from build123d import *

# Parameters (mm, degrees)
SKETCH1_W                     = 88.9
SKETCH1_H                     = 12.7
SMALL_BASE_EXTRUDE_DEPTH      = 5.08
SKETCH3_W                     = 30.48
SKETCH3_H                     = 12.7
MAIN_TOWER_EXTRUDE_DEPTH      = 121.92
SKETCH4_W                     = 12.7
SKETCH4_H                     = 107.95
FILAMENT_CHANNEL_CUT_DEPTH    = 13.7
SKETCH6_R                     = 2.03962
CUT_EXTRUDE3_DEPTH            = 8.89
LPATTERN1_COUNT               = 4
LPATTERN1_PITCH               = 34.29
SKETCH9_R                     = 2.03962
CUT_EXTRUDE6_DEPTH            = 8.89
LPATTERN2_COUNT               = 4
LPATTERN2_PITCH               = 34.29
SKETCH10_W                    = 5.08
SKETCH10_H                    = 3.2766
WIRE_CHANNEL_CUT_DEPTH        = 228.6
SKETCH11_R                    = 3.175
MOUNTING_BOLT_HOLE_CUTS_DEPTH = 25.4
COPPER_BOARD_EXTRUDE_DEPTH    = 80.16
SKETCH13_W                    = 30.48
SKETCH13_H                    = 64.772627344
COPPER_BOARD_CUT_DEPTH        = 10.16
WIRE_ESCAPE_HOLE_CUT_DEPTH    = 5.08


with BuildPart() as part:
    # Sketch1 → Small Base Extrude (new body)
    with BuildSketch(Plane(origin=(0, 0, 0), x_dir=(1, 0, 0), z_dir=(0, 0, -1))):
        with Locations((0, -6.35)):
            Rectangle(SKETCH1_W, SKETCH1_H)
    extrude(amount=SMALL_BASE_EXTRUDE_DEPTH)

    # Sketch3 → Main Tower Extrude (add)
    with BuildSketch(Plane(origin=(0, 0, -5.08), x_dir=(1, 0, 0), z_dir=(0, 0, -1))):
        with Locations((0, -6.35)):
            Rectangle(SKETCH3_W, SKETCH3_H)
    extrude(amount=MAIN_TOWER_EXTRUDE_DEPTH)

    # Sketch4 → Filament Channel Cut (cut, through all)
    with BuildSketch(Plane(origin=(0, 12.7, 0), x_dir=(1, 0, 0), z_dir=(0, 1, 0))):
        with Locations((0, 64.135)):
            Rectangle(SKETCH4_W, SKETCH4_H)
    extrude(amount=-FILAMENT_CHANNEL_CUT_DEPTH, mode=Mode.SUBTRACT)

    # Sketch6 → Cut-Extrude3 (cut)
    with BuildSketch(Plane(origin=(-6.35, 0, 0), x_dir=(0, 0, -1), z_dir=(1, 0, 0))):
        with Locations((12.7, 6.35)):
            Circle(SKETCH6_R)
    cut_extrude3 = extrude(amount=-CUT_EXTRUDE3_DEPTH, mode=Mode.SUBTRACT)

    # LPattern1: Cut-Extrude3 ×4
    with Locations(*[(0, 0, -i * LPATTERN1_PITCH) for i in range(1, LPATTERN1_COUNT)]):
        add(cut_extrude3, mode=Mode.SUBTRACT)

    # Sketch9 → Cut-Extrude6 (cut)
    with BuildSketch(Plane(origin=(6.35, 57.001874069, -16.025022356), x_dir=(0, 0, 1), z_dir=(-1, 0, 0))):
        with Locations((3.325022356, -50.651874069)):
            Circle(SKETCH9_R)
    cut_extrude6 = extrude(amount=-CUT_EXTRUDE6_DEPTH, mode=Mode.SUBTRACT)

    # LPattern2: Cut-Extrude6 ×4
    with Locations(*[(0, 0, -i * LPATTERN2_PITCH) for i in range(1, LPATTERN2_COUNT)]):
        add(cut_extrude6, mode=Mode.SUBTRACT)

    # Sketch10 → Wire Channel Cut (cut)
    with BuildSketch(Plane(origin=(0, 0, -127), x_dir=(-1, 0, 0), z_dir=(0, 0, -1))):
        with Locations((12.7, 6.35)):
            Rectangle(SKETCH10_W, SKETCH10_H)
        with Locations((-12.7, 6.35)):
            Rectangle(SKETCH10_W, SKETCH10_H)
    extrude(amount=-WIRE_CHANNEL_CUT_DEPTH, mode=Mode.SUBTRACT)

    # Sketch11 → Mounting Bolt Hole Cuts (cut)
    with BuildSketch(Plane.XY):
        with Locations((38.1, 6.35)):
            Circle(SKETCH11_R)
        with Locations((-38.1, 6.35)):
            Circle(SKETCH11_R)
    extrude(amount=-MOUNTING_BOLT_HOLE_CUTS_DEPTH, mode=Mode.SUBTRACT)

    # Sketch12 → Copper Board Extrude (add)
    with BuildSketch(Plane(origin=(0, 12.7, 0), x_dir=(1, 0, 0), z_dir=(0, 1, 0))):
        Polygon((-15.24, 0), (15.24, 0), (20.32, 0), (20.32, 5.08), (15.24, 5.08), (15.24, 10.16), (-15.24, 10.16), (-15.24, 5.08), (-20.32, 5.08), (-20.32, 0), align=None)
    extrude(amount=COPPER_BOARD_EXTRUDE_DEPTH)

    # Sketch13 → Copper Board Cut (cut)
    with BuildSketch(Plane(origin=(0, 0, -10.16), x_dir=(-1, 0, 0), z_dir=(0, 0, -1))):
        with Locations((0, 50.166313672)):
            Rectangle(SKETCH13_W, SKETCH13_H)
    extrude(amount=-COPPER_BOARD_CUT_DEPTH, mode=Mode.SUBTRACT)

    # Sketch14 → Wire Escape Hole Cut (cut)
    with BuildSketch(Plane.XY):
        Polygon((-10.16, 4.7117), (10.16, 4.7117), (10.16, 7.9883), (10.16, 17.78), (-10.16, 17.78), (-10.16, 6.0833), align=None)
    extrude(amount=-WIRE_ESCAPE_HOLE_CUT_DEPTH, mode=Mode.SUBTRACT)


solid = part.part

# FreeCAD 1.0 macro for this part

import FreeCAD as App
import Part
import Sketcher
Q = App.Units.Quantity


def add_polygon(sketch, points):
    """Adds a closed chain of lines whose ends are joined by coincident constraints."""
    first, n = sketch.GeometryCount, len(points)
    for a, b in zip(points, points[1:] + points[:1]):
        sketch.addGeometry(Part.LineSegment(App.Vector(*a, 0), App.Vector(*b, 0)), False)
    for i in range(n):
        sketch.addConstraint(Sketcher.Constraint("Coincident", first + i, 2, first + (i + 1) % n, 1))

doc = App.newDocument("Part")
body = doc.addObject("PartDesign::Body", "Body")

# Sketch on XY plane
sketch1 = body.newObject("Sketcher::SketchObject", "Sketch")
sketch1.AttachmentSupport = (doc.getObject("XY_Plane"), [""])
sketch1.MapMode = "FlatFace"
add_polygon(sketch1, [(-44, 0), (-44, 13), (44, 13), (44, 0)])  # lines 0-3
sketch1.addConstraint(Sketcher.Constraint("Vertical", 0))
sketch1.addConstraint(Sketcher.Constraint("Horizontal", 1))
sketch1.addConstraint(Sketcher.Constraint("Vertical", 2))
sketch1.addConstraint(Sketcher.Constraint("Horizontal", 3))
sketch1.addConstraint(Sketcher.Constraint("Symmetric", 2, 2, 3, 2, -1, 1))
sketch1.addConstraint(Sketcher.Constraint("DistanceX", 1, 1, 1, 2, Q("3.5 in")))
sketch1.addConstraint(Sketcher.Constraint("DistanceY", 0, 1, 0, 2, Q("0.5 in")))
pad1 = body.newObject("PartDesign::Pad", "Pad")
pad1.Profile = sketch1
pad1.Length = Q("0.2 in")
pad1.Reversed = True

# Sketch on XY plane
sketch2 = body.newObject("Sketcher::SketchObject", "Sketch001")
sketch2.AttachmentSupport = (doc.getObject("XY_Plane"), [""])
sketch2.MapMode = "FlatFace"
sketch2.AttachmentOffset = App.Placement(App.Vector(0, 0, -0.2 * 25.4), App.Rotation())
add_polygon(sketch2, [(-15, 0), (-15, 13), (15, 13), (15, 0)])  # lines 0-3
sketch2.addConstraint(Sketcher.Constraint("Vertical", 0))
sketch2.addConstraint(Sketcher.Constraint("Horizontal", 1))
sketch2.addConstraint(Sketcher.Constraint("Vertical", 2))
sketch2.addConstraint(Sketcher.Constraint("Horizontal", 3))
sketch2.addConstraint(Sketcher.Constraint("Symmetric", 2, 2, 3, 2, -1, 1))
sketch2.addConstraint(Sketcher.Constraint("DistanceX", 1, 1, 1, 2, Q("1.2 in")))
sketch2.addConstraint(Sketcher.Constraint("DistanceY", 0, 1, 0, 2, Q("0.5 in")))
pad2 = body.newObject("PartDesign::Pad", "Pad001")
pad2.Profile = sketch2
pad2.Length = Q("4.8 in")
pad2.Reversed = True

# Sketch on XZ plane
sketch3 = body.newObject("Sketcher::SketchObject", "Sketch002")
sketch3.AttachmentSupport = (doc.getObject("XZ_Plane"), [""])
sketch3.MapMode = "FlatFace"
sketch3.AttachmentOffset = App.Placement(App.Vector(0, 0, -0.5 * 25.4), App.Rotation())
add_polygon(sketch3, [(-6, -118), (-6, -10), (6, -10), (6, -118)])  # lines 0-3
sketch3.addConstraint(Sketcher.Constraint("Vertical", 0))
sketch3.addConstraint(Sketcher.Constraint("Horizontal", 1))
sketch3.addConstraint(Sketcher.Constraint("Vertical", 2))
sketch3.addConstraint(Sketcher.Constraint("Horizontal", 3))
sketch3.addConstraint(Sketcher.Constraint("DistanceX", 1, 1, 1, 2, Q("0.5 in")))
sketch3.addConstraint(Sketcher.Constraint("DistanceY", 0, 1, 0, 2, Q("4.25 in")))
sketch3.addConstraint(Sketcher.Constraint("DistanceY", 0, 2, -1, 1, Q("0.4 in")))
sketch3.addConstraint(Sketcher.Constraint("DistanceX", 0, 2, -1, 1, Q("0.25 in")))
pocket1 = body.newObject("PartDesign::Pocket", "Pocket")
pocket1.Profile = sketch3
pocket1.Type = "ThroughAll"
pocket1.Reversed = True

# Sketch on YZ plane
sketch4 = body.newObject("Sketcher::SketchObject", "Sketch003")
sketch4.AttachmentSupport = (doc.getObject("YZ_Plane"), [""])
sketch4.MapMode = "FlatFace"
sketch4.AttachmentOffset = App.Placement(App.Vector(0, 0, -0.25 * 25.4), App.Rotation())
sketch4.addGeometry(Part.Circle(App.Vector(6.3, -12.7, 0), App.Vector(0, 0, 1), 2), False)
sketch4.addConstraint(Sketcher.Constraint("Diameter", 0, Q("0.1606 in")))
sketch4.addConstraint(Sketcher.Constraint("DistanceY", 0, 3, -1, 1, Q("0.5 in")))
sketch4.addConstraint(Sketcher.Constraint("DistanceX", -1, 1, 0, 3, Q("0.25 in")))
pocket2 = body.newObject("PartDesign::Pocket", "Pocket001")
pocket2.Profile = sketch4
pocket2.Length = Q("0.35 in")
doc.recompute()

linearpattern = body.newObject("PartDesign::LinearPattern", "LinearPattern")
linearpattern.Originals = [pocket2]
linearpattern.Direction = (doc.getObject("Z_Axis"), [""])
linearpattern.Mode = "offset"
linearpattern.Offset = Q("1.35 in")
linearpattern.Occurrences = 4
linearpattern.Reversed = True
body.Tip = linearpattern

# Sketch on YZ plane
sketch5 = body.newObject("Sketcher::SketchObject", "Sketch004")
sketch5.AttachmentSupport = (doc.getObject("YZ_Plane"), [""])
sketch5.MapMode = "FlatFace"
sketch5.AttachmentOffset = App.Placement(App.Vector(0, 0, 0.25 * 25.4), App.Rotation())
sketch5.addGeometry(Part.Circle(App.Vector(6.3, -12.7, 0), App.Vector(0, 0, 1), 2), False)
sketch5.addConstraint(Sketcher.Constraint("Diameter", 0, Q("0.1606 in")))
sketch5.addConstraint(Sketcher.Constraint("DistanceY", 0, 3, -1, 1, Q("0.5 in")))
sketch5.addConstraint(Sketcher.Constraint("DistanceX", -1, 1, 0, 3, Q("0.25 in")))
pocket3 = body.newObject("PartDesign::Pocket", "Pocket002")
pocket3.Profile = sketch5
pocket3.Length = Q("0.35 in")
pocket3.Reversed = True
doc.recompute()

linearpattern2 = body.newObject("PartDesign::LinearPattern", "LinearPattern001")
linearpattern2.Originals = [pocket3]
linearpattern2.Direction = (doc.getObject("Z_Axis"), [""])
linearpattern2.Mode = "offset"
linearpattern2.Offset = Q("1.35 in")
linearpattern2.Occurrences = 4
linearpattern2.Reversed = True
body.Tip = linearpattern2

# Sketch on XY plane
sketch6 = body.newObject("Sketcher::SketchObject", "Sketch005")
sketch6.AttachmentSupport = (doc.getObject("XY_Plane"), [""])
sketch6.MapMode = "FlatFace"
sketch6.AttachmentOffset = App.Placement(App.Vector(0, 0, -5 * 25.4), App.Rotation())
add_polygon(sketch6, [(-10.2, 8), (-10.2, 4.7), (-15.2, 4.7), (-15.2, 8)])  # lines 0-3
add_polygon(sketch6, [(15.2, 8), (15.2, 4.7), (10.2, 4.7), (10.2, 8)])  # lines 4-7
sketch6.addConstraint(Sketcher.Constraint("Vertical", 0))
sketch6.addConstraint(Sketcher.Constraint("Horizontal", 1))
sketch6.addConstraint(Sketcher.Constraint("Vertical", 2))
sketch6.addConstraint(Sketcher.Constraint("Horizontal", 3))
sketch6.addConstraint(Sketcher.Constraint("Vertical", 4))
sketch6.addConstraint(Sketcher.Constraint("Horizontal", 5))
sketch6.addConstraint(Sketcher.Constraint("Vertical", 6))
sketch6.addConstraint(Sketcher.Constraint("Horizontal", 7))
sketch6.addConstraint(Sketcher.Constraint("Symmetric", 1, 2, 4, 2, -2))
sketch6.addConstraint(Sketcher.Constraint("Symmetric", 3, 2, 6, 2, -2))
sketch6.addConstraint(Sketcher.Constraint("DistanceX", 1, 2, 1, 1, Q("0.2 in")))
sketch6.addConstraint(Sketcher.Constraint("DistanceX", 0, 2, 4, 2, Q("1 in")))
sketch6.addConstraint(Sketcher.Constraint("DistanceY", 0, 2, 0, 1, Q("0.129 in")))
sketch6.addConstraint(Sketcher.Constraint("DistanceY", -1, 1, 0, 2, Q("0.1855 in")))
pocket4 = body.newObject("PartDesign::Pocket", "Pocket003")
pocket4.Profile = sketch6
pocket4.Length = Q("9 in")
pocket4.Reversed = True

# Sketch on XY plane
sketch7 = body.newObject("Sketcher::SketchObject", "Sketch006")
sketch7.AttachmentSupport = (doc.getObject("XY_Plane"), [""])
sketch7.MapMode = "FlatFace"
sketch7.addGeometry(Part.Circle(App.Vector(38.1, 6.3, 0), App.Vector(0, 0, 1), 3.2), False)
sketch7.addGeometry(Part.Circle(App.Vector(-38.1, 6.3, 0), App.Vector(0, 0, 1), 3.2), False)
sketch7.addConstraint(Sketcher.Constraint("Equal", 0, 1))
sketch7.addConstraint(Sketcher.Constraint("Symmetric", 0, 3, 1, 3, -2))
sketch7.addConstraint(Sketcher.Constraint("Diameter", 0, Q("0.25 in")))
sketch7.addConstraint(Sketcher.Constraint("DistanceX", 1, 3, 0, 3, Q("3 in")))
sketch7.addConstraint(Sketcher.Constraint("DistanceY", -1, 1, 0, 3, Q("0.25 in")))
pocket5 = body.newObject("PartDesign::Pocket", "Pocket004")
pocket5.Profile = sketch7
pocket5.Length = Q("1 in")

# Sketch on XZ plane
sketch8 = body.newObject("Sketcher::SketchObject", "Sketch007")
sketch8.AttachmentSupport = (doc.getObject("XZ_Plane"), [""])
sketch8.MapMode = "FlatFace"
sketch8.AttachmentOffset = App.Placement(App.Vector(0, 0, -0.5 * 25.4), App.Rotation())
add_polygon(sketch8, [(20, 0), (20, -5), (15, -5), (15, -10), (-15, -10), (-15, -5), (-20, -5), (-20, 0)])  # lines 0-7
sketch8.addConstraint(Sketcher.Constraint("Vertical", 0))
sketch8.addConstraint(Sketcher.Constraint("Horizontal", 1))
sketch8.addConstraint(Sketcher.Constraint("Vertical", 2))
sketch8.addConstraint(Sketcher.Constraint("Horizontal", 3))
sketch8.addConstraint(Sketcher.Constraint("Vertical", 4))
sketch8.addConstraint(Sketcher.Constraint("Horizontal", 5))
sketch8.addConstraint(Sketcher.Constraint("Vertical", 6))
sketch8.addConstraint(Sketcher.Constraint("Horizontal", 7))
sketch8.addConstraint(Sketcher.Constraint("Symmetric", 6, 2, 7, 2, -1, 1))
sketch8.addConstraint(Sketcher.Constraint("Symmetric", 1, 2, 4, 2, -2))
sketch8.addConstraint(Sketcher.Constraint("Equal", 5, 0))
sketch8.addConstraint(Sketcher.Constraint("Equal", 0, 2))
sketch8.addConstraint(Sketcher.Constraint("DistanceX", 1, 2, 1, 1, Q("0.2 in")))
sketch8.addConstraint(Sketcher.Constraint("DistanceX", 3, 2, 3, 1, Q("1.2 in")))
pad3 = body.newObject("PartDesign::Pad", "Pad002")
pad3.Profile = sketch8
pad3.Length = 80.16
pad3.Reversed = True

# Sketch on XY plane
sketch9 = body.newObject("Sketcher::SketchObject", "Sketch008")
sketch9.AttachmentSupport = (doc.getObject("XY_Plane"), [""])
sketch9.MapMode = "FlatFace"
sketch9.AttachmentOffset = App.Placement(App.Vector(0, 0, -0.4 * 25.4), App.Rotation())
add_polygon(sketch9, [(15, 83), (15, 18), (-15, 18), (-15, 83)])  # lines 0-3
sketch9.addConstraint(Sketcher.Constraint("Vertical", 0))
sketch9.addConstraint(Sketcher.Constraint("Horizontal", 1))
sketch9.addConstraint(Sketcher.Constraint("Vertical", 2))
sketch9.addConstraint(Sketcher.Constraint("Horizontal", 3))
sketch9.addConstraint(Sketcher.Constraint("DistanceX", 1, 2, 1, 1, Q("1.2 in")))
sketch9.addConstraint(Sketcher.Constraint("DistanceX", -1, 1, 0, 2, Q("0.6 in")))
sketch9.addConstraint(Sketcher.Constraint("DistanceY", -1, 1, 0, 2, Q("0.7 in")))
sketch9.addConstraint(Sketcher.Constraint("DistanceY", 0, 2, 0, 1, 64.772627))
pocket6 = body.newObject("PartDesign::Pocket", "Pocket005")
pocket6.Profile = sketch9
pocket6.Length = Q("0.4 in")
pocket6.Reversed = True

# Sketch on XY plane
sketch10 = body.newObject("Sketcher::SketchObject", "Sketch009")
sketch10.AttachmentSupport = (doc.getObject("XY_Plane"), [""])
sketch10.MapMode = "FlatFace"
add_polygon(sketch10, [(-10, 5), (10, 5), (10, 18), (-10, 18)])  # lines 0-3
sketch10.addConstraint(Sketcher.Constraint("Horizontal", 0))
sketch10.addConstraint(Sketcher.Constraint("Vertical", 1))
sketch10.addConstraint(Sketcher.Constraint("Horizontal", 2))
sketch10.addConstraint(Sketcher.Constraint("Vertical", 3))
sketch10.addConstraint(Sketcher.Constraint("DistanceX", 0, 1, 0, 2, Q("0.8 in")))
sketch10.addConstraint(Sketcher.Constraint("DistanceX", -1, 1, 0, 2, Q("0.4 in")))
sketch10.addConstraint(Sketcher.Constraint("DistanceY", -1, 1, 1, 2, Q("0.7 in")))
sketch10.addConstraint(Sketcher.Constraint("DistanceY", 1, 1, 1, 2, Q("0.5145 in")))
pocket7 = body.newObject("PartDesign::Pocket", "Pocket006")
pocket7.Profile = sketch10
pocket7.Length = Q("0.2 in")

doc.recompute()
